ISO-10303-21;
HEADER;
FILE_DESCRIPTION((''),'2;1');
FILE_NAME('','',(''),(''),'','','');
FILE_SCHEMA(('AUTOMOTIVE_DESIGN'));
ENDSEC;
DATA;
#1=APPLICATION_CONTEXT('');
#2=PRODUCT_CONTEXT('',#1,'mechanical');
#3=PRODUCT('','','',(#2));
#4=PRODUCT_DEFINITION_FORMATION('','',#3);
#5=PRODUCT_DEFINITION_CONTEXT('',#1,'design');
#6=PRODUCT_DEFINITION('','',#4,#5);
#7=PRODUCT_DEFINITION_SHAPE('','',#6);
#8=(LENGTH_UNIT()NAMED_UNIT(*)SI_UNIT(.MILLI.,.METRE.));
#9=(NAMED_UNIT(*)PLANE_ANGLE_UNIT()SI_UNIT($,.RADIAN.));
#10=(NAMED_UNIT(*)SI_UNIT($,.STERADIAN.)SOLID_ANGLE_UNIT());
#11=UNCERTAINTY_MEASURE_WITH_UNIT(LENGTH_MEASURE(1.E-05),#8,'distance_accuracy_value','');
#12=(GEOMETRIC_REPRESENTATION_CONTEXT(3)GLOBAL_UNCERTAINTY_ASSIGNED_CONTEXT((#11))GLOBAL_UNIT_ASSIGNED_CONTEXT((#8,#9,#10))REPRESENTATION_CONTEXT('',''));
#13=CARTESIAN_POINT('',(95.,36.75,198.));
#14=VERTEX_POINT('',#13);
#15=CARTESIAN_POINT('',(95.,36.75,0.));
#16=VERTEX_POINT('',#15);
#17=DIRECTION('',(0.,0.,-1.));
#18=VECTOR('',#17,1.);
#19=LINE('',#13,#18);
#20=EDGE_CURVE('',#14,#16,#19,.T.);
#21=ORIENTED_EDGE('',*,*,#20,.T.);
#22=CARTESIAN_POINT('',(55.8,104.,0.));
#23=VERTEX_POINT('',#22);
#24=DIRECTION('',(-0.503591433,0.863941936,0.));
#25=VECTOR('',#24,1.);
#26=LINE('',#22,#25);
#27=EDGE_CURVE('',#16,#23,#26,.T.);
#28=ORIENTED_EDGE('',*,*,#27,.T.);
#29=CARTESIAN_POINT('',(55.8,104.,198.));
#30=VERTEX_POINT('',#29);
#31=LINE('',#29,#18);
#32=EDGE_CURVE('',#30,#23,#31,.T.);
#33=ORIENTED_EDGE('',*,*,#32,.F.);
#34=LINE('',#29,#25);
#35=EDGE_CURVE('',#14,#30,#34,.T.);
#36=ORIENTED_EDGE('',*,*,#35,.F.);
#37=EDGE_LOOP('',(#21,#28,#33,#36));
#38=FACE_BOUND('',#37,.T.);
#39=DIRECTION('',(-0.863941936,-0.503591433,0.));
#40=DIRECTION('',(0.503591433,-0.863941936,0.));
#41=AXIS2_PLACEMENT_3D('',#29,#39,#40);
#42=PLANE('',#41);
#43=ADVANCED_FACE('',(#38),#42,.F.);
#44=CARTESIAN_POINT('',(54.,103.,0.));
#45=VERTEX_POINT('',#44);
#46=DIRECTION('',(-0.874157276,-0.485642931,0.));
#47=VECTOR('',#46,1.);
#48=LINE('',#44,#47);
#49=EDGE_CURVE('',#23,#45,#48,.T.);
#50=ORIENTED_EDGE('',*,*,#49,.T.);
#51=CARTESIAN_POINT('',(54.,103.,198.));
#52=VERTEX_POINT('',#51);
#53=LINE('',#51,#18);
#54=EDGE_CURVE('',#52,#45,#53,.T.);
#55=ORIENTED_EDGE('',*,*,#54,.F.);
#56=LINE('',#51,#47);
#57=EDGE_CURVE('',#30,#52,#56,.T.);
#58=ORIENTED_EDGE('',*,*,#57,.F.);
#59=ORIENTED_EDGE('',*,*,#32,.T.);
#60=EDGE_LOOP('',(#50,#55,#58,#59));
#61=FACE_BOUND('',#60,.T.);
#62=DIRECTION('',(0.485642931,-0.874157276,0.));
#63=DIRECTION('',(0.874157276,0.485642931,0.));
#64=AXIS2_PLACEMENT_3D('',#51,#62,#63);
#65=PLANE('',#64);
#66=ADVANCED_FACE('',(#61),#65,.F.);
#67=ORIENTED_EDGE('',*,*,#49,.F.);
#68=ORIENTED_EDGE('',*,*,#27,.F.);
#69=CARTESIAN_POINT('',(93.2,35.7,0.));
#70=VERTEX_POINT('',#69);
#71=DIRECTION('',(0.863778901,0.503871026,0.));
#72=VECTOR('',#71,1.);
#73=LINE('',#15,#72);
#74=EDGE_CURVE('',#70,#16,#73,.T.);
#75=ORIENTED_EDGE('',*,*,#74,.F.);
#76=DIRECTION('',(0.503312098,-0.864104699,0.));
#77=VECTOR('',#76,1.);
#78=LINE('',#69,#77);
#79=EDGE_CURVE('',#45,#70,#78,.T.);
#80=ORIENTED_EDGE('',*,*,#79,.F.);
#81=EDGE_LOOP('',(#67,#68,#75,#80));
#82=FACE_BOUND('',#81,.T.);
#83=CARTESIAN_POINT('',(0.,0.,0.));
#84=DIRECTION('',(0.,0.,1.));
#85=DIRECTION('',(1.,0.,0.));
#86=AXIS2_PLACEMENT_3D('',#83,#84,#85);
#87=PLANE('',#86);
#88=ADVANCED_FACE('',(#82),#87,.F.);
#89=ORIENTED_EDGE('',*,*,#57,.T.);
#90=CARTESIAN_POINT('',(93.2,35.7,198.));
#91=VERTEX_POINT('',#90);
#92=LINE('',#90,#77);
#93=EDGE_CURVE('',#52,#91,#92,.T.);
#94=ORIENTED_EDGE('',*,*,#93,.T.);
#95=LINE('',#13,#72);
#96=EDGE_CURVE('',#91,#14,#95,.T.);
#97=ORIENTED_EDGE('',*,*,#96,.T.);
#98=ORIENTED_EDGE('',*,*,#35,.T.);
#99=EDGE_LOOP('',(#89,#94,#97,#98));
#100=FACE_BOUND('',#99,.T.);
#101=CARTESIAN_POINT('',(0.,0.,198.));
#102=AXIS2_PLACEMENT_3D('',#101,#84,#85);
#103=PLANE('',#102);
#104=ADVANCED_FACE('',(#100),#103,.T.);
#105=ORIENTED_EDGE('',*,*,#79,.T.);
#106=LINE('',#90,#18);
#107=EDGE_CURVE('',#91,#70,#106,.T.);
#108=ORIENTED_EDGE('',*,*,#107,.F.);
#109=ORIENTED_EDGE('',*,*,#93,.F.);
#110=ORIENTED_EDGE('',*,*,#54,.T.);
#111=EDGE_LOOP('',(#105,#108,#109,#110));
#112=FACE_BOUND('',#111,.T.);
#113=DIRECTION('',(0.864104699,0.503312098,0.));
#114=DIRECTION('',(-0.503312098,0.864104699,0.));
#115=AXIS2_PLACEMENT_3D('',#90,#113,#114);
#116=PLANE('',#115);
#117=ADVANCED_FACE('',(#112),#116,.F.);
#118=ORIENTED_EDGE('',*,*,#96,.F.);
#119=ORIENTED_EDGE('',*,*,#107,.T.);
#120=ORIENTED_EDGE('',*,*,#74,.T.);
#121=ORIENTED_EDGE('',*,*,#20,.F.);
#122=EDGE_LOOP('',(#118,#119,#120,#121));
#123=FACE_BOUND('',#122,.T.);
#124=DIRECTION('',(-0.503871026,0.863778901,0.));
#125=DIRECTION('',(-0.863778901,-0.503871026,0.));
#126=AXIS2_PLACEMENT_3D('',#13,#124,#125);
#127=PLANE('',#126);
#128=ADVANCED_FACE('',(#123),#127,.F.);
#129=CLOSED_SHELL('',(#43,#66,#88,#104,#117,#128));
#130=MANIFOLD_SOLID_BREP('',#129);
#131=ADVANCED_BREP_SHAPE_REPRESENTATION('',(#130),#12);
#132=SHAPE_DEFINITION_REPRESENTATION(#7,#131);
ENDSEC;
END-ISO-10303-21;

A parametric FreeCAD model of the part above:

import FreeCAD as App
import Part
import Sketcher
from FreeCAD import Vector


def add_polygon(sketch, points):
    """Adds a closed chain of lines whose ends are joined by coincident constraints."""
    first, n = sketch.GeometryCount, len(points)
    for a, b in zip(points, points[1:] + points[:1]):
        sketch.addGeometry(Part.LineSegment(App.Vector(*a, 0), App.Vector(*b, 0)), False)
    for i in range(n):
        sketch.addConstraint(Sketcher.Constraint("Coincident", first + i, 2, first + (i + 1) % n, 1))

doc = App.newDocument("Part")
body = doc.addObject("PartDesign::Body", "Body")

sketch1 = doc.addObject("Sketcher::SketchObject", "Sketch")
body.addObject(sketch1)
sketch1.AttachmentSupport = (doc.XY_Plane, [""])
sketch1.MapMode = "FlatFace"
add_polygon(sketch1, [(55.8, 104), (54, 103), (93.2, 35.7), (95, 36.8)])
sketch1.addConstraint([
    Sketcher.Constraint("DistanceX", -1, 1, 0, 2, 54.0),
    Sketcher.Constraint("DistanceY", -1, 1, 0, 2, 103.0),
    Sketcher.Constraint("DistanceX", -1, 1, 2, 2, 95.0),
    Sketcher.Constraint("DistanceY", -1, 1, 3, 2, 104.0),
    Sketcher.Constraint("DistanceX", -1, 1, 1, 2, 93.2),
    Sketcher.Constraint("DistanceY", -1, 1, 1, 2, 35.7),
    Sketcher.Constraint("DistanceX", -1, 1, 3, 2, 55.8),
    Sketcher.Constraint("DistanceY", -1, 1, 2, 2, 36.75),
])
pad1 = doc.addObject("PartDesign::Pad", "Pad")
body.addObject(pad1)
pad1.Profile = sketch1
pad1.Length = 198

doc.recompute()
